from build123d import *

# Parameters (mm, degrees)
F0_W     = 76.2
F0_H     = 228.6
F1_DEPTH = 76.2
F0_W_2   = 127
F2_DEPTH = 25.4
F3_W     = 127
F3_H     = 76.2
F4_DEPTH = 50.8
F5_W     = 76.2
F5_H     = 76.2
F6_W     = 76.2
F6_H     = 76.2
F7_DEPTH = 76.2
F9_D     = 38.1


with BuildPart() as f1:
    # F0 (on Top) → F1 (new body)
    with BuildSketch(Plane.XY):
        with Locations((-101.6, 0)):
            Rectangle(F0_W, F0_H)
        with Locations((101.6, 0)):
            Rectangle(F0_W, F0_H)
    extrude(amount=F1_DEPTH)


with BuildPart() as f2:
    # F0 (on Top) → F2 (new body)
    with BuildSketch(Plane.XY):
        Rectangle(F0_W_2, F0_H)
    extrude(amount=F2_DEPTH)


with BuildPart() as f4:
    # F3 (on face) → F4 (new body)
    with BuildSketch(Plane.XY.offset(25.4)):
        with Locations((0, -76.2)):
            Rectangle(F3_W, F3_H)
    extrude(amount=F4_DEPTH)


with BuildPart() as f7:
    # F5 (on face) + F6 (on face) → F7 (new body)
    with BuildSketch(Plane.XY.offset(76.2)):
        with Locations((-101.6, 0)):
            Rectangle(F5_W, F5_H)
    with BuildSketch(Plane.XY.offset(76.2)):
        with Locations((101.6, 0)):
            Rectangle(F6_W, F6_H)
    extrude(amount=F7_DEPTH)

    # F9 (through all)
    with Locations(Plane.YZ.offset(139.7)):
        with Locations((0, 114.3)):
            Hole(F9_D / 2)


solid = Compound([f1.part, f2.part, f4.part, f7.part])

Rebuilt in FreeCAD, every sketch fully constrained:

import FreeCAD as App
import Part
import Sketcher

V = App.Vector
Q = App.Units.Quantity


def add_polygon(sketch, points):
    """Adds a closed chain of lines whose ends are joined by coincident constraints."""
    first, n = sketch.GeometryCount, len(points)
    for a, b in zip(points, points[1:] + points[:1]):
        sketch.addGeometry(Part.LineSegment(App.Vector(*a, 0), App.Vector(*b, 0)), False)
    for i in range(n):
        sketch.addConstraint(Sketcher.Constraint("Coincident", first + i, 2, first + (i + 1) % n, 1))

doc = App.newDocument("Part")
body = doc.addObject("PartDesign::Body", "Body")
body.AllowCompound = True

# Sketch on XY plane
sketch1 = doc.addObject("Sketcher::SketchObject", "Sketch")
body.addObject(sketch1)
sketch1.AttachmentSupport = (doc.XY_Plane, [""])
sketch1.MapMode = "FlatFace"
add_polygon(sketch1, [(-140, 114), (-140, -114), (-64, -114), (-64, 114)])  # lines 0-3
add_polygon(sketch1, [(64, 114), (64, -114), (140, -114), (140, 114)])  # lines 4-7
sketch1.addConstraint([
    Sketcher.Constraint("Vertical", 0),
    Sketcher.Constraint("Horizontal", 1),
    Sketcher.Constraint("Vertical", 2),
    Sketcher.Constraint("Horizontal", 3),
    Sketcher.Constraint("Vertical", 4),
    Sketcher.Constraint("Horizontal", 5),
    Sketcher.Constraint("Vertical", 6),
    Sketcher.Constraint("Horizontal", 7),
    Sketcher.Constraint("Symmetric", 2, 2, 4, 2, -1, 1),
    Sketcher.Constraint("Symmetric", 0, 2, 6, 2, -1, 1),
    Sketcher.Constraint("Horizontal", 1, 2, 4, 2),
    Sketcher.Constraint("DistanceX", 1, 1, 1, 2, Q("3 in")),
    Sketcher.Constraint("DistanceY", 0, 2, 0, 1, Q("9 in")),
    Sketcher.Constraint("DistanceX", 1, 2, 4, 2, Q("5 in")),
])
pad1 = doc.addObject("PartDesign::Pad", "Pad")
body.addObject(pad1)
pad1.Profile = sketch1
pad1.Length = Q("3 in")
body2 = doc.addObject("PartDesign::Body", "Body001")

# Sketch on XY plane
sketch2 = doc.addObject("Sketcher::SketchObject", "Sketch001")
body2.addObject(sketch2)
sketch2.AttachmentSupport = (doc.getObject("XY_Plane001"), [""])
sketch2.MapMode = "FlatFace"
add_polygon(sketch2, [(-64, 114), (-64, -114), (64, -114), (64, 114)])  # lines 0-3
sketch2.addConstraint([
    Sketcher.Constraint("Vertical", 0),
    Sketcher.Constraint("Horizontal", 1),
    Sketcher.Constraint("Vertical", 2),
    Sketcher.Constraint("Horizontal", 3),
    Sketcher.Constraint("Symmetric", 0, 2, 2, 2, -1, 1),
    Sketcher.Constraint("DistanceX", 1, 1, 1, 2, Q("5 in")),
    Sketcher.Constraint("DistanceY", 0, 2, 0, 1, Q("9 in")),
])
pad2 = doc.addObject("PartDesign::Pad", "Pad001")
body2.addObject(pad2)
pad2.Profile = sketch2
pad2.Length = Q("1 in")
body3 = doc.addObject("PartDesign::Body", "Body002")

# Sketch on XY plane
sketch3 = doc.addObject("Sketcher::SketchObject", "Sketch002")
body3.addObject(sketch3)
sketch3.AttachmentSupport = (doc.getObject("XY_Plane002"), [""])
sketch3.MapMode = "FlatFace"
sketch3.AttachmentOffset = App.Placement(V(0, 0, 1 * 25.4), App.Rotation())
add_polygon(sketch3, [(-64, -38), (-64, -114), (64, -114), (64, -38)])  # lines 0-3
sketch3.addConstraint([
    Sketcher.Constraint("Vertical", 0),
    Sketcher.Constraint("Horizontal", 1),
    Sketcher.Constraint("Vertical", 2),
    Sketcher.Constraint("Horizontal", 3),
    Sketcher.Constraint("DistanceX", 1, 1, 1, 2, Q("5 in")),
    Sketcher.Constraint("DistanceY", 0, 2, 0, 1, Q("3 in")),
    Sketcher.Constraint("DistanceX", 0, 2, -1, 1, Q("2.5 in")),
    Sketcher.Constraint("DistanceY", 0, 2, -1, 1, Q("4.5 in")),
])
pad3 = doc.addObject("PartDesign::Pad", "Pad002")
body3.addObject(pad3)
pad3.Profile = sketch3
pad3.Length = Q("2 in")
body4 = doc.addObject("PartDesign::Body", "Body003")
body4.AllowCompound = True

# Sketch on XY plane
sketch4 = doc.addObject("Sketcher::SketchObject", "Sketch003")
body4.addObject(sketch4)
sketch4.AttachmentSupport = (doc.getObject("XY_Plane003"), [""])
sketch4.MapMode = "FlatFace"
sketch4.AttachmentOffset = App.Placement(V(0, 0, 3 * 25.4), App.Rotation())
add_polygon(sketch4, [(-140, 38), (-140, -38), (-64, -38), (-64, 38)])  # lines 0-3
add_polygon(sketch4, [(64, 38), (64, -38), (140, -38), (140, 38)])  # lines 4-7
sketch4.addConstraint([
    Sketcher.Constraint("Vertical", 0),
    Sketcher.Constraint("Horizontal", 1),
    Sketcher.Constraint("Vertical", 2),
    Sketcher.Constraint("Horizontal", 3),
    Sketcher.Constraint("Vertical", 4),
    Sketcher.Constraint("Horizontal", 5),
    Sketcher.Constraint("Vertical", 6),
    Sketcher.Constraint("Horizontal", 7),
    Sketcher.Constraint("Symmetric", 2, 2, 4, 2, -1, 1),
    Sketcher.Constraint("Symmetric", 0, 2, 6, 2, -1, 1),
    Sketcher.Constraint("Horizontal", 1, 2, 4, 2),
    Sketcher.Constraint("Equal", 7, 0),
    Sketcher.Constraint("DistanceX", 1, 1, 1, 2, Q("3 in")),
    Sketcher.Constraint("DistanceX", 1, 2, 4, 2, Q("5 in")),
])
pad4 = doc.addObject("PartDesign::Pad", "Pad003")
body4.addObject(pad4)
pad4.Profile = sketch4
pad4.Length = Q("3 in")

# Sketch on YZ plane
sketch5 = doc.addObject("Sketcher::SketchObject", "Sketch004")
body4.addObject(sketch5)
sketch5.AttachmentSupport = (doc.getObject("YZ_Plane003"), [""])
sketch5.MapMode = "FlatFace"
sketch5.AttachmentOffset = App.Placement(V(0, 0, 5.5 * 25.4), App.Rotation())
sketch5.addGeometry(Part.Circle(V(0, 114, 0), V(0, 0, 1), 19), False)
sketch5.addConstraint([
    Sketcher.Constraint("PointOnObject", 0, 3, -2),
    Sketcher.Constraint("Diameter", 0, Q("1.5 in")),
    Sketcher.Constraint("DistanceY", -1, 1, 0, 3, Q("4.5 in")),
])
doc.recompute()
hole = doc.addObject("PartDesign::Hole", "Hole")
body4.addObject(hole)
hole.Profile = sketch5
hole.ThreadType = "None"
hole.Diameter = Q("1.5 in")
hole.DepthType = "ThroughAll"

doc.recompute()
